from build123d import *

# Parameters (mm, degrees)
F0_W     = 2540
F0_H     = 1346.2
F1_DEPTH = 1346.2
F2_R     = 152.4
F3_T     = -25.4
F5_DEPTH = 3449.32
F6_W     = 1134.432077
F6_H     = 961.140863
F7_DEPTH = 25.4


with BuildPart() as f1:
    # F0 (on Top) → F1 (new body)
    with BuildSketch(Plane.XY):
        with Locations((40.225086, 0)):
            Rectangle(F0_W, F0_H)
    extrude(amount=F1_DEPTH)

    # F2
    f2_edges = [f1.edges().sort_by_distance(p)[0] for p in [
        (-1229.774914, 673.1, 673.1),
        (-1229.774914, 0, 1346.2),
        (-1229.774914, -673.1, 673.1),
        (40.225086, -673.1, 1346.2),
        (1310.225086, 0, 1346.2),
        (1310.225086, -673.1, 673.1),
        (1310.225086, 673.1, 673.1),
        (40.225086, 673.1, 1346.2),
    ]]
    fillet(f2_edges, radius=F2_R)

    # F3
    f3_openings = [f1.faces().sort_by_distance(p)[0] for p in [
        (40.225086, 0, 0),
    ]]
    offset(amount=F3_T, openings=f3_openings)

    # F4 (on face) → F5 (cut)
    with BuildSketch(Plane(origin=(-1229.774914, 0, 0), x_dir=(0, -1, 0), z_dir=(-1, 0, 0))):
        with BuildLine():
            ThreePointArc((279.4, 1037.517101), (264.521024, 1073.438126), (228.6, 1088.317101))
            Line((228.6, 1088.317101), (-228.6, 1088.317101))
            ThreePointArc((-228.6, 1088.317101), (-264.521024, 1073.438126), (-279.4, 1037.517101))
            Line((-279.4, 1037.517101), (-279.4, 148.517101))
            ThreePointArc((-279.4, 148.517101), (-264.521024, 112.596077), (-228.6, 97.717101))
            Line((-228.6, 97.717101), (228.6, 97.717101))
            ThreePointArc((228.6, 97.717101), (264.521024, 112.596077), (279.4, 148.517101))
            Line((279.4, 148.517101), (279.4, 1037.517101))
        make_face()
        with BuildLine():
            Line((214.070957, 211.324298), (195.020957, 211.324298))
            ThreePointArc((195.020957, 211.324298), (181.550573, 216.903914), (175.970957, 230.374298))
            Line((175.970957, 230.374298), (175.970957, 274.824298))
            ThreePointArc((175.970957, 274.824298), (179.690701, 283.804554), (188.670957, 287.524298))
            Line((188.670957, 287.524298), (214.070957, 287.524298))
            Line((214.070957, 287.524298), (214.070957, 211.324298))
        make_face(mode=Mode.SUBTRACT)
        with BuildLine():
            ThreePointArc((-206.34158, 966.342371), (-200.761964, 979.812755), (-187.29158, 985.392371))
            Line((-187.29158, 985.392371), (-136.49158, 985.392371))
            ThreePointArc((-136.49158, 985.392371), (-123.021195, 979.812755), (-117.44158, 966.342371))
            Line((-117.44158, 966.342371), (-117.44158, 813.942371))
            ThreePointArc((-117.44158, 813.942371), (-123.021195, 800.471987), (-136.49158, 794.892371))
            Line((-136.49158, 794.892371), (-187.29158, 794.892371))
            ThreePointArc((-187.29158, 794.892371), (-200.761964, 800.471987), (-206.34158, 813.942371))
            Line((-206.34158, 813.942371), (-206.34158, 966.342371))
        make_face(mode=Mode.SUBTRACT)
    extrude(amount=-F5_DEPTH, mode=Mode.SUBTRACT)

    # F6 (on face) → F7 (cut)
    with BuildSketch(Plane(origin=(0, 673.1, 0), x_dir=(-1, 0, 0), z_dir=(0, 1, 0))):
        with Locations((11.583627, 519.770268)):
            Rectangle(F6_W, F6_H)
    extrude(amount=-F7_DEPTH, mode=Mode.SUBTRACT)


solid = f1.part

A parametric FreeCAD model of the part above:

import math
import FreeCAD as App
import Part
import Sketcher

V = App.Vector
Q = App.Units.Quantity


def edges_at(feature, points):
    """Names of the edges that pass closest to the given points."""
    edges = feature.Shape.Edges
    near = lambda p: min(range(len(edges)), key=lambda i: edges[i].distToShape(Part.Vertex(*p))[0])
    return sorted({f"Edge{near(p) + 1}" for p in points})


def faces_at(feature, points):
    """Names of the faces that lie closest to the given points."""
    faces = feature.Shape.Faces
    near = lambda p: min(range(len(faces)), key=lambda i: faces[i].distToShape(Part.Vertex(*p))[0])
    return sorted({f"Face{near(p) + 1}" for p in points})

doc = App.newDocument("Part")
body = doc.addObject("PartDesign::Body", "Body")
body.AllowCompound = True

sketch1 = body.newObject("Sketcher::SketchObject", "Sketch")
sketch1.AttachmentSupport = (doc.getObject("XY_Plane"), [""])
sketch1.MapMode = "FlatFace"
sketch1.addGeometry(Part.LineSegment(V(-1230, 673, 0), V(-1230, -673, 0)), False)
sketch1.addGeometry(Part.LineSegment(V(-1230, -673, 0), V(1310, -673, 0)), False)
sketch1.addGeometry(Part.LineSegment(V(1310, -673, 0), V(1310, 673, 0)), False)
sketch1.addGeometry(Part.LineSegment(V(1310, 673, 0), V(-1230, 673, 0)), False)
sketch1.addConstraint(Sketcher.Constraint("Coincident", 0, 2, 1, 1))
sketch1.addConstraint(Sketcher.Constraint("Coincident", 1, 2, 2, 1))
sketch1.addConstraint(Sketcher.Constraint("Coincident", 2, 2, 3, 1))
sketch1.addConstraint(Sketcher.Constraint("Coincident", 3, 2, 0, 1))
sketch1.addConstraint(Sketcher.Constraint("Vertical", 0))
sketch1.addConstraint(Sketcher.Constraint("Horizontal", 1))
sketch1.addConstraint(Sketcher.Constraint("Vertical", 2))
sketch1.addConstraint(Sketcher.Constraint("Horizontal", 3))
sketch1.addConstraint(Sketcher.Constraint("DistanceX", 1, 1, 1, 2, Q("100 in")))
sketch1.addConstraint(Sketcher.Constraint("DistanceY", 0, 2, 0, 1, Q("53 in")))
sketch1.addConstraint(Sketcher.Constraint("DistanceY", 0, 2, -1, 1, Q("26.5 in")))
sketch1.addConstraint(Sketcher.Constraint("DistanceX", 0, 2, -1, 1, Q("1229.774914 mm")))
pad1 = body.newObject("PartDesign::Pad", "Pad")
pad1.Profile = sketch1
pad1.Length = Q("53 in")
doc.recompute()

fillet = body.newObject("PartDesign::Fillet", "Fillet")
fillet.Base = (pad1, edges_at(pad1, [
    (-1229.775, 673.1, 673.1),
    (-1229.775, 0, 1346.2),
    (-1229.775, -673.1, 673.1),
    (40.225, -673.1, 1346.2),
    (1310.225, 0, 1346.2),
    (1310.225, -673.1, 673.1),
    (1310.225, 673.1, 673.1),
    (40.225, 673.1, 1346.2),
]))
fillet.Radius = Q("6 in")
doc.recompute()

thickness = body.newObject("PartDesign::Thickness", "Thickness")
thickness.Base = (fillet, faces_at(fillet, [(40.225, 0, 0)]))
thickness.Value = Q("1 in")
thickness.Reversed = True
thickness.Join = "Arc"

sketch2 = body.newObject("Sketcher::SketchObject", "Sketch001")
sketch2.AttachmentSupport = (doc.getObject("YZ_Plane"), [""])
sketch2.MapMode = "FlatFace"
sketch2.AttachmentOffset = App.Placement(V(0, 0, -1229.774914), App.Rotation())
sketch2.addGeometry(Part.ArcOfCircle(Part.Circle(V(-229, 1038, 0), V(0, 0, 1), 51), math.radians(90), math.radians(180)), False)
sketch2.addGeometry(Part.LineSegment(V(-229, 1088, 0), V(229, 1088, 0)), False)
sketch2.addGeometry(Part.ArcOfCircle(Part.Circle(V(229, 1038, 0), V(0, 0, 1), 51), math.radians(0), math.radians(90)), False)
sketch2.addGeometry(Part.LineSegment(V(279, 1038, 0), V(279, 149, 0)), False)
sketch2.addGeometry(Part.ArcOfCircle(Part.Circle(V(229, 149, 0), V(0, 0, 1), 51), math.radians(-90), math.radians(0)), False)
sketch2.addGeometry(Part.LineSegment(V(229, 98, 0), V(-229, 98, 0)), False)
sketch2.addGeometry(Part.ArcOfCircle(Part.Circle(V(-229, 149, 0), V(0, 0, 1), 51), math.radians(-180), math.radians(-90)), False)
sketch2.addGeometry(Part.LineSegment(V(-279, 149, 0), V(-279, 1038, 0)), False)
sketch2.addGeometry(Part.LineSegment(V(-214, 288, 0), V(-214, 211, 0)), False)
sketch2.addGeometry(Part.LineSegment(V(-214, 211, 0), V(-195, 211, 0)), False)
sketch2.addGeometry(Part.ArcOfCircle(Part.Circle(V(-195, 230, 0), V(0, 0, 1), 19), math.radians(-90), math.radians(0)), False)
sketch2.addGeometry(Part.LineSegment(V(-176, 230, 0), V(-176, 275, 0)), False)
sketch2.addGeometry(Part.ArcOfCircle(Part.Circle(V(-189, 275, 0), V(0, 0, 1), 13), math.radians(0), math.radians(90)), False)
sketch2.addGeometry(Part.LineSegment(V(-189, 288, 0), V(-214, 288, 0)), False)
sketch2.addGeometry(Part.LineSegment(V(206, 814, 0), V(206, 966, 0)), False)
sketch2.addGeometry(Part.ArcOfCircle(Part.Circle(V(187, 966, 0), V(0, 0, 1), 19), math.radians(0), math.radians(90)), False)
sketch2.addGeometry(Part.LineSegment(V(187, 985, 0), V(136, 985, 0)), False)
sketch2.addGeometry(Part.ArcOfCircle(Part.Circle(V(136, 966, 0), V(0, 0, 1), 19), math.radians(90), math.radians(180)), False)
sketch2.addGeometry(Part.LineSegment(V(117, 966, 0), V(117, 814, 0)), False)
sketch2.addGeometry(Part.ArcOfCircle(Part.Circle(V(136, 814, 0), V(0, 0, 1), 19), math.radians(180), math.radians(270)), False)
sketch2.addGeometry(Part.LineSegment(V(136, 795, 0), V(187, 795, 0)), False)
sketch2.addGeometry(Part.ArcOfCircle(Part.Circle(V(187, 814, 0), V(0, 0, 1), 19), math.radians(-90), math.radians(0)), False)
sketch2.addConstraint(Sketcher.Constraint("Tangent", 0, 1, 1, 1))
sketch2.addConstraint(Sketcher.Constraint("Tangent", 1, 2, 2, 2))
sketch2.addConstraint(Sketcher.Constraint("Tangent", 2, 1, 3, 1))
sketch2.addConstraint(Sketcher.Constraint("Tangent", 3, 2, 4, 2))
sketch2.addConstraint(Sketcher.Constraint("Tangent", 4, 1, 5, 1))
sketch2.addConstraint(Sketcher.Constraint("Tangent", 5, 2, 6, 2))
sketch2.addConstraint(Sketcher.Constraint("Tangent", 6, 1, 7, 1))
sketch2.addConstraint(Sketcher.Constraint("Tangent", 7, 2, 0, 2))
sketch2.addConstraint(Sketcher.Constraint("Coincident", 8, 2, 9, 1))
sketch2.addConstraint(Sketcher.Constraint("Tangent", 9, 2, 10, 1))
sketch2.addConstraint(Sketcher.Constraint("Tangent", 10, 2, 11, 1))
sketch2.addConstraint(Sketcher.Constraint("Tangent", 11, 2, 12, 1))
sketch2.addConstraint(Sketcher.Constraint("Tangent", 12, 2, 13, 1))
sketch2.addConstraint(Sketcher.Constraint("Coincident", 13, 2, 8, 1))
sketch2.addConstraint(Sketcher.Constraint("Tangent", 14, 2, 15, 1))
sketch2.addConstraint(Sketcher.Constraint("Tangent", 15, 2, 16, 1))
sketch2.addConstraint(Sketcher.Constraint("Tangent", 16, 2, 17, 1))
sketch2.addConstraint(Sketcher.Constraint("Tangent", 17, 2, 18, 1))
sketch2.addConstraint(Sketcher.Constraint("Tangent", 18, 2, 19, 1))
sketch2.addConstraint(Sketcher.Constraint("Tangent", 19, 2, 20, 1))
sketch2.addConstraint(Sketcher.Constraint("Tangent", 20, 2, 21, 1))
sketch2.addConstraint(Sketcher.Constraint("Tangent", 21, 2, 14, 1))
sketch2.addConstraint(Sketcher.Constraint("Horizontal", 1))
sketch2.addConstraint(Sketcher.Constraint("Vertical", 3))
sketch2.addConstraint(Sketcher.Constraint("Horizontal", 5))
sketch2.addConstraint(Sketcher.Constraint("Vertical", 7))
sketch2.addConstraint(Sketcher.Constraint("Vertical", 8))
sketch2.addConstraint(Sketcher.Constraint("Horizontal", 9))
sketch2.addConstraint(Sketcher.Constraint("Vertical", 11))
sketch2.addConstraint(Sketcher.Constraint("Horizontal", 13))
sketch2.addConstraint(Sketcher.Constraint("Vertical", 14))
sketch2.addConstraint(Sketcher.Constraint("Horizontal", 16))
sketch2.addConstraint(Sketcher.Constraint("Vertical", 18))
sketch2.addConstraint(Sketcher.Constraint("Horizontal", 20))
sketch2.addConstraint(Sketcher.Constraint("Equal", 0, 2))
sketch2.addConstraint(Sketcher.Constraint("Equal", 2, 4))
sketch2.addConstraint(Sketcher.Constraint("Equal", 4, 6))
sketch2.addConstraint(Sketcher.Constraint("Equal", 10, 15))
sketch2.addConstraint(Sketcher.Constraint("Equal", 15, 17))
sketch2.addConstraint(Sketcher.Constraint("Equal", 17, 19))
sketch2.addConstraint(Sketcher.Constraint("Equal", 19, 21))
sketch2.addConstraint(Sketcher.Constraint("Radius", 0, Q("2 in")))
sketch2.addConstraint(Sketcher.Constraint("Radius", 12, Q("0.5 in")))
sketch2.addConstraint(Sketcher.Constraint("DistanceX", 1, 1, 1, 2, Q("18 in")))
sketch2.addConstraint(Sketcher.Constraint("DistanceX", 13, 2, 13, 1, Q("1 in")))
sketch2.addConstraint(Sketcher.Constraint("DistanceX", 16, 2, 16, 1, Q("2 in")))
sketch2.addConstraint(Sketcher.Constraint("DistanceY", 3, 2, 3, 1, Q("35 in")))
sketch2.addConstraint(Sketcher.Constraint("DistanceY", 8, 2, 8, 1, Q("3 in")))
sketch2.addConstraint(Sketcher.Constraint("DistanceY", 14, 1, 14, 2, Q("6 in")))
sketch2.addConstraint(Sketcher.Constraint("Radius", 10, Q("0.75 in")))
sketch2.addConstraint(Sketcher.Constraint("DistanceX", 0, 3, -1, 1, Q("9 in")))
sketch2.addConstraint(Sketcher.Constraint("DistanceY", -1, 1, 0, 3, Q("1037.517101 mm")))
sketch2.addConstraint(Sketcher.Constraint("DistanceY", -1, 1, 10, 3, Q("230.374299 mm")))
sketch2.addConstraint(Sketcher.Constraint("DistanceX", -1, 1, 15, 3, Q("187.291579 mm")))
sketch2.addConstraint(Sketcher.Constraint("DistanceY", -1, 1, 15, 3, Q("966.34237 mm")))
sketch2.addConstraint(Sketcher.Constraint("DistanceX", 6, 3, 10, 3, Q("33.579041 mm")))
pocket1 = body.newObject("PartDesign::Pocket", "Pocket")
pocket1.Profile = sketch2
pocket1.Length = Q("135.8 in")
pocket1.Reversed = True

sketch3 = body.newObject("Sketcher::SketchObject", "Sketch002")
sketch3.AttachmentSupport = (doc.getObject("XZ_Plane"), [""])
sketch3.MapMode = "FlatFace"
sketch3.AttachmentOffset = App.Placement(V(0, 0, -26.5 * 25.4), App.Rotation())
sketch3.addGeometry(Part.LineSegment(V(556, 1000, 0), V(556, 39, 0)), False)
sketch3.addGeometry(Part.LineSegment(V(556, 39, 0), V(-579, 39, 0)), False)
sketch3.addGeometry(Part.LineSegment(V(-579, 39, 0), V(-579, 1000, 0)), False)
sketch3.addGeometry(Part.LineSegment(V(-579, 1000, 0), V(556, 1000, 0)), False)
sketch3.addConstraint(Sketcher.Constraint("Coincident", 0, 2, 1, 1))
sketch3.addConstraint(Sketcher.Constraint("Coincident", 1, 2, 2, 1))
sketch3.addConstraint(Sketcher.Constraint("Coincident", 2, 2, 3, 1))
sketch3.addConstraint(Sketcher.Constraint("Coincident", 3, 2, 0, 1))
sketch3.addConstraint(Sketcher.Constraint("Vertical", 0))
sketch3.addConstraint(Sketcher.Constraint("Horizontal", 1))
sketch3.addConstraint(Sketcher.Constraint("Vertical", 2))
sketch3.addConstraint(Sketcher.Constraint("Horizontal", 3))
sketch3.addConstraint(Sketcher.Constraint("DistanceY", -1, 1, 2, 2, Q("1000.3407 mm")))
sketch3.addConstraint(Sketcher.Constraint("DistanceX", 1, 2, 1, 1, Q("1134.432077 mm")))
sketch3.addConstraint(Sketcher.Constraint("DistanceY", 0, 2, 0, 1, Q("961.140863 mm")))
sketch3.addConstraint(Sketcher.Constraint("DistanceX", -1, 1, 0, 2, Q("555.632411 mm")))
pocket2 = body.newObject("PartDesign::Pocket", "Pocket001")
pocket2.Profile = sketch3
pocket2.Length = Q("1 in")
pocket2.Reversed = True

doc.recompute()
